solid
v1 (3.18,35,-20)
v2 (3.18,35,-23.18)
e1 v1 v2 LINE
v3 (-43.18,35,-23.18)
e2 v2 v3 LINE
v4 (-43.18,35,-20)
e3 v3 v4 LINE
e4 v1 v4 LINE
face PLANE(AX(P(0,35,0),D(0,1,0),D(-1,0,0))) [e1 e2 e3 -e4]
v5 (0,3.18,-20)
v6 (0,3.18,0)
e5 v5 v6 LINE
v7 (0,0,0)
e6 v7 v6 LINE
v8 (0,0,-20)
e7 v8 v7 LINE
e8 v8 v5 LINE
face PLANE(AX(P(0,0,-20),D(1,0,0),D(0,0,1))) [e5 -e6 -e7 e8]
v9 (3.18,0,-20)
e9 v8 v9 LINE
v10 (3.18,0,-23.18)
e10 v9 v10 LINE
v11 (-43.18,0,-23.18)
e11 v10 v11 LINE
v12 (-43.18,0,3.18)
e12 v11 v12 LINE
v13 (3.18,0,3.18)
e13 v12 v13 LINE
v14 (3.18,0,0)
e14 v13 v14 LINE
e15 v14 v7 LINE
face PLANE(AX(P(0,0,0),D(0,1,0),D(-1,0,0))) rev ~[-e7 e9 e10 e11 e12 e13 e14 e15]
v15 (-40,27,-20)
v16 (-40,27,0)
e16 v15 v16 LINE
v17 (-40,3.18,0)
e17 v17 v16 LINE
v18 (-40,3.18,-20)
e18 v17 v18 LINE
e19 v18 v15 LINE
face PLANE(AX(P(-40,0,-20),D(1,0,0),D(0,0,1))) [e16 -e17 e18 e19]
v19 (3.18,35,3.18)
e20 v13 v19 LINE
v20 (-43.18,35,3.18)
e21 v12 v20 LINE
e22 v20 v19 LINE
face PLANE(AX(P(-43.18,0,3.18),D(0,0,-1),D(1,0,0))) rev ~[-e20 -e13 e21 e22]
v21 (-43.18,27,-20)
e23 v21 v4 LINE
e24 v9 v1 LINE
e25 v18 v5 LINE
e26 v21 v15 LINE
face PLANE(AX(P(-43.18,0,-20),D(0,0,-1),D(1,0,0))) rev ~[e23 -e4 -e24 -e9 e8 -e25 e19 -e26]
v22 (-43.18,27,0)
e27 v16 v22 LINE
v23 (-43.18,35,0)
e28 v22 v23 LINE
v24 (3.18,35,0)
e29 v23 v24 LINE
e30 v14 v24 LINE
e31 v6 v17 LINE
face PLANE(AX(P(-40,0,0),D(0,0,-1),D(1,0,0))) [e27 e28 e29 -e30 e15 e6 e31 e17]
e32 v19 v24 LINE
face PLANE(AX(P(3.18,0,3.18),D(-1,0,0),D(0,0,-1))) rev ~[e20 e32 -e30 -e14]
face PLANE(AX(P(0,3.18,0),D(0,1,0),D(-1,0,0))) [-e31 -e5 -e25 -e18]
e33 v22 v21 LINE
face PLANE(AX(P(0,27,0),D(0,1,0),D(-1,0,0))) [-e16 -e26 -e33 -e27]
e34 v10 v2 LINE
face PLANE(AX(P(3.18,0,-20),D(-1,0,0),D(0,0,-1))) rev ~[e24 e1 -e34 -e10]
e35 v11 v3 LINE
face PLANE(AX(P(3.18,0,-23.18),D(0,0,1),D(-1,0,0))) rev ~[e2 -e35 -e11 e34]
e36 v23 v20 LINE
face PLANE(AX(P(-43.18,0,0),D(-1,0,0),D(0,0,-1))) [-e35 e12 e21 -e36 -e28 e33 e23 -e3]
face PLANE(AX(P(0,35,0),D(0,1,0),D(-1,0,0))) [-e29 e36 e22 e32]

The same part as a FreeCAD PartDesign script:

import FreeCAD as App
import Part
import Sketcher
from FreeCAD import Vector


def add_polygon(sketch, points):
    """Adds a closed chain of lines whose ends are joined by coincident constraints."""
    first, n = sketch.GeometryCount, len(points)
    for a, b in zip(points, points[1:] + points[:1]):
        sketch.addGeometry(Part.LineSegment(App.Vector(*a, 0), App.Vector(*b, 0)), False)
    for i in range(n):
        sketch.addConstraint(Sketcher.Constraint("Coincident", first + i, 2, first + (i + 1) % n, 1))

doc = App.newDocument("Part")
params = doc.addObject("Spreadsheet::Sheet", "Params")
for row, (alias, value) in enumerate([
    ("sketch1_width", "40 mm"),
    ("sketch1_height", "20 mm"),
    ("pad1_length", "3.18 mm"),
    ("sketch2_height", "3.18 mm"),
    ("sketch2_width", "46.36 mm"),
    ("pad2_length", "35 mm"),
    ("sketch3_height", "20 mm"),
    ("sketch3_width", "3.18 mm"),
    ("pad3_length", "27 mm"),
], start=1):
    params.set(f"A{row}", alias)
    params.set(f"B{row}", "=" + value)
    params.setAlias(f"B{row}", alias)

body = doc.addObject("PartDesign::Body", "Body")

sketch1 = body.newObject("Sketcher::SketchObject", "Sketch")
sketch1.AttachmentSupport = (doc.getObject("XZ_Plane"), [""])
sketch1.MapMode = "FlatFace"
add_polygon(sketch1, [(-40, 0), (0, 0), (0, -20), (-40, -20)])
sketch1.addConstraint(Sketcher.Constraint("Horizontal", 0))
sketch1.addConstraint(Sketcher.Constraint("Vertical", 1))
sketch1.addConstraint(Sketcher.Constraint("Horizontal", 2))
sketch1.addConstraint(Sketcher.Constraint("Vertical", 3))
sketch1.addConstraint(Sketcher.Constraint("Coincident", 0, 2, -1, 1))
sketch1.addConstraint(Sketcher.Constraint("DistanceX", 0, 1, 0, 2, 40.0))
sketch1.addConstraint(Sketcher.Constraint("DistanceY", 1, 2, 1, 1, 20.0))
sketch1.setExpression("Constraints[9]", "Params.sketch1_width")
sketch1.setExpression("Constraints[10]", "Params.sketch1_height")
pad1 = body.newObject("PartDesign::Pad", "Pad")
pad1.Profile = sketch1
pad1.setExpression("Length", "Params.pad1_length")
pad1.Reversed = True

sketch2 = body.newObject("Sketcher::SketchObject", "Sketch001")
sketch2.AttachmentSupport = (doc.getObject("XZ_Plane"), [""])
sketch2.MapMode = "FlatFace"
add_polygon(sketch2, [(3.2, 0), (-43.2, 0), (-43.2, 3.2), (3.2, 3.2)])
add_polygon(sketch2, [(-43.2, -20), (3.2, -20), (3.2, -23.2), (-43.2, -23.2)])
sketch2.addConstraint(Sketcher.Constraint("Horizontal", 0))
sketch2.addConstraint(Sketcher.Constraint("Vertical", 1))
sketch2.addConstraint(Sketcher.Constraint("Horizontal", 2))
sketch2.addConstraint(Sketcher.Constraint("Vertical", 3))
sketch2.addConstraint(Sketcher.Constraint("Horizontal", 4))
sketch2.addConstraint(Sketcher.Constraint("Vertical", 5))
sketch2.addConstraint(Sketcher.Constraint("Horizontal", 6))
sketch2.addConstraint(Sketcher.Constraint("Vertical", 7))
sketch2.addConstraint(Sketcher.Constraint("PointOnObject", 0, 2, -1))
sketch2.addConstraint(Sketcher.Constraint("Vertical", 3, 2, 4, 2))
sketch2.addConstraint(Sketcher.Constraint("Vertical", 1, 2, 6, 2))
sketch2.addConstraint(Sketcher.Constraint("Equal", 3, 5))
sketch2.addConstraint(Sketcher.Constraint("DistanceY", 1, 1, 1, 2, 3.18))
sketch2.addConstraint(Sketcher.Constraint("DistanceX", -1, 1, 2, 2, 3.18))
sketch2.addConstraint(Sketcher.Constraint("DistanceY", 4, 2, -1, 1, 20.0))
sketch2.addConstraint(Sketcher.Constraint("DistanceX", 0, 2, 0, 1, 46.36))
sketch2.setExpression("Constraints[20]", "Params.sketch2_height")
sketch2.setExpression("Constraints[23]", "Params.sketch2_width")
pad2 = body.newObject("PartDesign::Pad", "Pad001")
pad2.Profile = sketch2
pad2.setExpression("Length", "Params.pad2_length")
pad2.Reversed = True

sketch3 = body.newObject("Sketcher::SketchObject", "Sketch002")
sketch3.AttachmentSupport = (doc.getObject("XZ_Plane"), [""])
sketch3.MapMode = "FlatFace"
add_polygon(sketch3, [(-43.2, 0), (-40, 0), (-40, -20), (-43.2, -20)])
sketch3.addConstraint(Sketcher.Constraint("Horizontal", 0))
sketch3.addConstraint(Sketcher.Constraint("Vertical", 1))
sketch3.addConstraint(Sketcher.Constraint("Horizontal", 2))
sketch3.addConstraint(Sketcher.Constraint("Vertical", 3))
sketch3.addConstraint(Sketcher.Constraint("PointOnObject", 0, 2, -1))
sketch3.addConstraint(Sketcher.Constraint("DistanceY", 1, 2, 1, 1, 20.0))
sketch3.addConstraint(Sketcher.Constraint("DistanceX", 0, 1, 0, 2, 3.18))
sketch3.addConstraint(Sketcher.Constraint("DistanceX", 0, 2, -1, 1, 40.0))
sketch3.setExpression("Constraints[9]", "Params.sketch3_height")
sketch3.setExpression("Constraints[10]", "Params.sketch3_width")
pad3 = body.newObject("PartDesign::Pad", "Pad002")
pad3.Profile = sketch3
pad3.setExpression("Length", "Params.pad3_length")
pad3.Reversed = True

doc.recompute()
